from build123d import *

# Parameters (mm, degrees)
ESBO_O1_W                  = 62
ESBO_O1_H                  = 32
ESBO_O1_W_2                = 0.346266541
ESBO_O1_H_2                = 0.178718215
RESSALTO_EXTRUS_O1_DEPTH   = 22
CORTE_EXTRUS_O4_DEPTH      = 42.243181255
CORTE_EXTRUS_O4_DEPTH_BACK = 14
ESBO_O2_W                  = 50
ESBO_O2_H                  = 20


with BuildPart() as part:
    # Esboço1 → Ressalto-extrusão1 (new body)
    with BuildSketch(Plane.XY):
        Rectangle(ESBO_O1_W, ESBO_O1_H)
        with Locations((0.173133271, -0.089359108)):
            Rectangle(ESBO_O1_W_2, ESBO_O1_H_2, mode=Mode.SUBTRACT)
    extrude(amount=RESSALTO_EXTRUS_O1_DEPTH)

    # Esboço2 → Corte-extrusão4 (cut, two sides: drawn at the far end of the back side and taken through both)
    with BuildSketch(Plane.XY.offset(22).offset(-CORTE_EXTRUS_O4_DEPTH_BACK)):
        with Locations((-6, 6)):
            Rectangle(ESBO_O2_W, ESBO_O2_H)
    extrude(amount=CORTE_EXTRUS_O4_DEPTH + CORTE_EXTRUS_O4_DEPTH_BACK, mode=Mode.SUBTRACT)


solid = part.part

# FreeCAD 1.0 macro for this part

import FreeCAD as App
import Part
import Sketcher


def add_polygon(sketch, points):
    """Adds a closed chain of lines whose ends are joined by coincident constraints."""
    first, n = sketch.GeometryCount, len(points)
    for a, b in zip(points, points[1:] + points[:1]):
        sketch.addGeometry(Part.LineSegment(App.Vector(*a, 0), App.Vector(*b, 0)), False)
    for i in range(n):
        sketch.addConstraint(Sketcher.Constraint("Coincident", first + i, 2, first + (i + 1) % n, 1))

doc = App.newDocument("Part")
params = doc.addObject("Spreadsheet::Sheet", "Params")
for row, (alias, value) in enumerate([
    ("sketch1_width", "62 mm"),
    ("sketch1_height", "32 mm"),
    ("pad1_length", "22 mm"),
    ("sketch2_width", "50 mm"),
    ("sketch2_height", "20 mm"),
    ("pocket1_length", "42.243181 mm"),
    ("pocket1_length2", "14 mm"),
], start=1):
    params.set(f"A{row}", alias)
    params.set(f"B{row}", "=" + value)
    params.setAlias(f"B{row}", alias)

body = doc.addObject("PartDesign::Body", "Body")

sketch1 = body.newObject("Sketcher::SketchObject", "Sketch")
sketch1.AttachmentSupport = (doc.getObject("XY_Plane"), [""])
sketch1.MapMode = "FlatFace"
add_polygon(sketch1, [(-31, 16), (-31, -16), (31, -16), (31, 16)])
add_polygon(sketch1, [(0.35, -0.18), (0, -0.18), (0, 0), (0.35, 0)])
sketch1.addConstraint([
    Sketcher.Constraint("Vertical", 0),
    Sketcher.Constraint("Horizontal", 1),
    Sketcher.Constraint("Vertical", 2),
    Sketcher.Constraint("Horizontal", 3),
    Sketcher.Constraint("Horizontal", 4),
    Sketcher.Constraint("Vertical", 5),
    Sketcher.Constraint("Horizontal", 6),
    Sketcher.Constraint("Vertical", 7),
    Sketcher.Constraint("Coincident", 5, 2, -1, 1),
    Sketcher.Constraint("Symmetric", 0, 2, 2, 2, -1, 1),
    Sketcher.Constraint("DistanceX", 1, 1, 1, 2, 62.0),
    Sketcher.Constraint("DistanceY", 0, 2, 0, 1, 32.0),
    Sketcher.Constraint("DistanceY", 5, 1, 5, 2, 0.178718),
    Sketcher.Constraint("DistanceX", 4, 2, 4, 1, 0.346267),
])
sketch1.setExpression("Constraints[18]", "Params.sketch1_width")
sketch1.setExpression("Constraints[19]", "Params.sketch1_height")
pad1 = body.newObject("PartDesign::Pad", "Pad")
pad1.Profile = sketch1
pad1.setExpression("Length", "Params.pad1_length")

sketch2 = body.newObject("Sketcher::SketchObject", "Sketch001")
sketch2.AttachmentSupport = (doc.getObject("XY_Plane"), [""])
sketch2.MapMode = "FlatFace"
sketch2.AttachmentOffset = App.Placement(App.Vector(0, 0, 22), App.Rotation())
add_polygon(sketch2, [(-31, 16), (-31, -4), (19, -4), (19, 16)])
sketch2.addConstraint([
    Sketcher.Constraint("Vertical", 0),
    Sketcher.Constraint("Horizontal", 1),
    Sketcher.Constraint("Vertical", 2),
    Sketcher.Constraint("Horizontal", 3),
    Sketcher.Constraint("DistanceX", 1, 1, 1, 2, 50.0),
    Sketcher.Constraint("DistanceY", 0, 2, 0, 1, 20.0),
    Sketcher.Constraint("DistanceX", 0, 2, -1, 1, 31.0),
    Sketcher.Constraint("DistanceY", 0, 2, -1, 1, 4.0),
])
sketch2.setExpression("Constraints[8]", "Params.sketch2_width")
sketch2.setExpression("Constraints[9]", "Params.sketch2_height")
pocket1 = body.newObject("PartDesign::Pocket", "Pocket")
pocket1.Profile = sketch2
pocket1.Type = "TwoLengths"
pocket1.setExpression("Length", "Params.pocket1_length")
pocket1.setExpression("Length2", "Params.pocket1_length2")
pocket1.Reversed = True

doc.recompute()
